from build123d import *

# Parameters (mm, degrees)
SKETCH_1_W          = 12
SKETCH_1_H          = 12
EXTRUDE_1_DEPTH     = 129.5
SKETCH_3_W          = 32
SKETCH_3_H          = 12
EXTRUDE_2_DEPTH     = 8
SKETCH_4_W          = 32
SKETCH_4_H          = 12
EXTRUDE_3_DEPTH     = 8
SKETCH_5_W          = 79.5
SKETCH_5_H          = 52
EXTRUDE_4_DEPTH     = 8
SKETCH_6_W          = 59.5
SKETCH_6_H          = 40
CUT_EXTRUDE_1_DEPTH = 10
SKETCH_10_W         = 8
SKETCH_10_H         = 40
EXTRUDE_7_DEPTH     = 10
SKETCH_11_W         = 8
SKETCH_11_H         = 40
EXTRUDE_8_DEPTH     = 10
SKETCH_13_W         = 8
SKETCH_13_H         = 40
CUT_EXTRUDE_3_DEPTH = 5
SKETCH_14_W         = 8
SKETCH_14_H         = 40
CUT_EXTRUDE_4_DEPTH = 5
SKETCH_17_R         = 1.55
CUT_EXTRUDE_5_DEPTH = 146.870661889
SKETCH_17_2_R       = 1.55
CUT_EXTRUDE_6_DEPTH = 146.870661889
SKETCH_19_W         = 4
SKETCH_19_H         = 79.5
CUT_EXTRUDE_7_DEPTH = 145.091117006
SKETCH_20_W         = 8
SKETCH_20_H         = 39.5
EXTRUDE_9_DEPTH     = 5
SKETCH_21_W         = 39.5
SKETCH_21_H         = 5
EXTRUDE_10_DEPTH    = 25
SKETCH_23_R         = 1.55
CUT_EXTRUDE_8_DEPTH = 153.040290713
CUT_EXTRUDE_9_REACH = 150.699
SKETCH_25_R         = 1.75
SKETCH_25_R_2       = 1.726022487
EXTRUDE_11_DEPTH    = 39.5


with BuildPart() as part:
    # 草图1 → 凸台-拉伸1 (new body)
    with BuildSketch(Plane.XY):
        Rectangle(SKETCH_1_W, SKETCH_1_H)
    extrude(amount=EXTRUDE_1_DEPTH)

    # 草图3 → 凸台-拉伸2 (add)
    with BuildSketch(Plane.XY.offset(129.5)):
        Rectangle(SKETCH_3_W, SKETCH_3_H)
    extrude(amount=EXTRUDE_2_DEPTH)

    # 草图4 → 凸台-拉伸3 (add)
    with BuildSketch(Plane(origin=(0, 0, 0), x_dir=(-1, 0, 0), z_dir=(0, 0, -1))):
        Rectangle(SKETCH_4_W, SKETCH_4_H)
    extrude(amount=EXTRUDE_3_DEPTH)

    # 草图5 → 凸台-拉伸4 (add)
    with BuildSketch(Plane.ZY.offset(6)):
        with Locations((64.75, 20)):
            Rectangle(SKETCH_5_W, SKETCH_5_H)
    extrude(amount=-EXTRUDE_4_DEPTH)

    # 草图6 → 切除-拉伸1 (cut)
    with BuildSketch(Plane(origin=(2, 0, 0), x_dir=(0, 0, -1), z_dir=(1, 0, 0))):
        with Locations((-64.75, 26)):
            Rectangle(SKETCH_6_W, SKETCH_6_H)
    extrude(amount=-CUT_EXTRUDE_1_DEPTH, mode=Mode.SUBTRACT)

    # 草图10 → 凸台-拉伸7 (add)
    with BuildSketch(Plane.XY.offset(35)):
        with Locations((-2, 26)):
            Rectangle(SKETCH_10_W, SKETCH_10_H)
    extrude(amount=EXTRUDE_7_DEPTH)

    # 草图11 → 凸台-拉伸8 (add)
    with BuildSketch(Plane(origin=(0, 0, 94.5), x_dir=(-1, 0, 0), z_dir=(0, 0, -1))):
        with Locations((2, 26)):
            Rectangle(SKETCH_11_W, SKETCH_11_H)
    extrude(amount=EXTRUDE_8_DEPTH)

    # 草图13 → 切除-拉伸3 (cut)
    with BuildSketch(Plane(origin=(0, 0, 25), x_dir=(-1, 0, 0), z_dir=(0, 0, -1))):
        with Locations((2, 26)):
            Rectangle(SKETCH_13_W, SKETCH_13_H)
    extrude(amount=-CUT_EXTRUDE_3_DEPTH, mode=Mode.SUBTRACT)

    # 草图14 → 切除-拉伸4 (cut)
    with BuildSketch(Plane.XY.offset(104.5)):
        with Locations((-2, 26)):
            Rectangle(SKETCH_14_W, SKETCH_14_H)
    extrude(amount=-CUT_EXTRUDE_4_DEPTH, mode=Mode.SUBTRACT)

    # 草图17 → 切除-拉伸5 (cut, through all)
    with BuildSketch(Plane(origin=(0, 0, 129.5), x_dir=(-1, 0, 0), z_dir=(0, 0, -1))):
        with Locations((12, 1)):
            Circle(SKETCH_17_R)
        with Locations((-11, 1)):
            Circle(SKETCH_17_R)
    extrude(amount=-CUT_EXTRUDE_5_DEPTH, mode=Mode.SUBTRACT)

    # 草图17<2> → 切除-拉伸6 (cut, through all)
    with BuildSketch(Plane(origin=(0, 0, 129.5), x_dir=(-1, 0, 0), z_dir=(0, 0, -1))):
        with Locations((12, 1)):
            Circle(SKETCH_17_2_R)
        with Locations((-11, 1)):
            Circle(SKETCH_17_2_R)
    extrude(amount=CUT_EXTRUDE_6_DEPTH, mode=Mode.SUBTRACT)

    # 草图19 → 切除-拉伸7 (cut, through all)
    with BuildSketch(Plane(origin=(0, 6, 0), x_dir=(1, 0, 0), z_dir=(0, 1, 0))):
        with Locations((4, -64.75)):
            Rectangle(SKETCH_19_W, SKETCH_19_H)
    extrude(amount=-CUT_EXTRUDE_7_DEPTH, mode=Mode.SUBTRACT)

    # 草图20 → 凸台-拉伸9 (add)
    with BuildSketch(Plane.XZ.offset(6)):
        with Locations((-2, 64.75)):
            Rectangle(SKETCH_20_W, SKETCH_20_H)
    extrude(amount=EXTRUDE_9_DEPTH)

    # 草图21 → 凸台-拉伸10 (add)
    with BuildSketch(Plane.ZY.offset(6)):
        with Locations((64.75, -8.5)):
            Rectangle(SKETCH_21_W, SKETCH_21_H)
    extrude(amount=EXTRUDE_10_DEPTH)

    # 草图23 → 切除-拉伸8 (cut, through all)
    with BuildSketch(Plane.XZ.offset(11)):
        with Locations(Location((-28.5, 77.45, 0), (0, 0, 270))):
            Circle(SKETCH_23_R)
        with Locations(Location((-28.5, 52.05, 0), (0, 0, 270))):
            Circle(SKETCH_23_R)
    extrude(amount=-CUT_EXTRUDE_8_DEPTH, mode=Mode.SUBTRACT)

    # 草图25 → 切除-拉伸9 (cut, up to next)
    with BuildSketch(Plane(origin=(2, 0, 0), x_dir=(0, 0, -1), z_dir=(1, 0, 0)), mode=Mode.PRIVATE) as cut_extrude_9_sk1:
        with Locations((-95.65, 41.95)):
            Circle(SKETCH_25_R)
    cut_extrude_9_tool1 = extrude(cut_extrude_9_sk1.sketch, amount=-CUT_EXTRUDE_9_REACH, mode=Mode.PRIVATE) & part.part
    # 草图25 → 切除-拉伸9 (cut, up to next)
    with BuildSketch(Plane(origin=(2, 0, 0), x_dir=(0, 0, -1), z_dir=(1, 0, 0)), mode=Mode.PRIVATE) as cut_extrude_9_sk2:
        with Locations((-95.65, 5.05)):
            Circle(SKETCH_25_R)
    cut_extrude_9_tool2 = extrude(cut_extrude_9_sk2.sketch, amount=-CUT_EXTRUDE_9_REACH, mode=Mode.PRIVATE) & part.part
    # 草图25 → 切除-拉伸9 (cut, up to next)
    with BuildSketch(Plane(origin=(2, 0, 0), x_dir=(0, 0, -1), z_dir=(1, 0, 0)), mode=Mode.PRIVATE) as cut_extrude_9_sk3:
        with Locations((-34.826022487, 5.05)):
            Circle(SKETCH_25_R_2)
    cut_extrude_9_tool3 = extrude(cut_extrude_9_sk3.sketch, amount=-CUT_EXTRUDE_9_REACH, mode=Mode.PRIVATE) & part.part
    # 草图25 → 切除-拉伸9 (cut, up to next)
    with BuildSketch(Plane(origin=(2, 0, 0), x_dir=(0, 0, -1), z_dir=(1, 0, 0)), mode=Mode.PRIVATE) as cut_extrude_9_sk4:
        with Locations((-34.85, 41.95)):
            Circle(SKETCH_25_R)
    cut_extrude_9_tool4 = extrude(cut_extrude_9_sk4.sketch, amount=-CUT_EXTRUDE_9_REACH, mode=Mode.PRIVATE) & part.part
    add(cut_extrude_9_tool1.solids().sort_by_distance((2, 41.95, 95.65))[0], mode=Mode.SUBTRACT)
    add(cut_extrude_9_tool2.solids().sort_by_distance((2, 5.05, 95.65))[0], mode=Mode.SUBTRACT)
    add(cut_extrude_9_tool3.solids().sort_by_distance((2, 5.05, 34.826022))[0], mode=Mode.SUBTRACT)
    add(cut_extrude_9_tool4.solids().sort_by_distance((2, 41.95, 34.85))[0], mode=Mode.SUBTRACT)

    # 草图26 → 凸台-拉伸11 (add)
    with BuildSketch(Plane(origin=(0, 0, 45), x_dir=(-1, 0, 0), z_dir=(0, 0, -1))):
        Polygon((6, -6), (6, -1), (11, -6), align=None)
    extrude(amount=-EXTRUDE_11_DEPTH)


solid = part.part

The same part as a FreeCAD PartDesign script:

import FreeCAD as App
import Part
import Sketcher
from FreeCAD import Vector


def add_polygon(sketch, points):
    """Adds a closed chain of lines whose ends are joined by coincident constraints."""
    first, n = sketch.GeometryCount, len(points)
    for a, b in zip(points, points[1:] + points[:1]):
        sketch.addGeometry(Part.LineSegment(App.Vector(*a, 0), App.Vector(*b, 0)), False)
    for i in range(n):
        sketch.addConstraint(Sketcher.Constraint("Coincident", first + i, 2, first + (i + 1) % n, 1))

doc = App.newDocument("Part")
body = doc.addObject("PartDesign::Body", "Body")

# Sketch on XY plane
sketch1 = body.newObject("Sketcher::SketchObject", "Sketch")
sketch1.AttachmentSupport = (doc.getObject("XY_Plane"), [""])
sketch1.MapMode = "FlatFace"
add_polygon(sketch1, [(-6, 6), (-6, -6), (6, -6), (6, 6)])  # lines 0-3
sketch1.addConstraint(Sketcher.Constraint("Vertical", 0))
sketch1.addConstraint(Sketcher.Constraint("Horizontal", 1))
sketch1.addConstraint(Sketcher.Constraint("Vertical", 2))
sketch1.addConstraint(Sketcher.Constraint("Horizontal", 3))
sketch1.addConstraint(Sketcher.Constraint("Symmetric", 0, 2, 2, 2, -1, 1))
sketch1.addConstraint(Sketcher.Constraint("Equal", 3, 0))
sketch1.addConstraint(Sketcher.Constraint("DistanceX", 1, 1, 1, 2, 12.0))
pad1 = body.newObject("PartDesign::Pad", "Pad")
pad1.Profile = sketch1
pad1.Length = 129.5

# Sketch on XY plane
sketch2 = body.newObject("Sketcher::SketchObject", "Sketch001")
sketch2.AttachmentSupport = (doc.getObject("XY_Plane"), [""])
sketch2.MapMode = "FlatFace"
sketch2.AttachmentOffset = App.Placement(Vector(0, 0, 129.5), App.Rotation())
add_polygon(sketch2, [(-16, 6), (-16, -6), (16, -6), (16, 6)])  # lines 0-3
sketch2.addConstraint(Sketcher.Constraint("Vertical", 0))
sketch2.addConstraint(Sketcher.Constraint("Horizontal", 1))
sketch2.addConstraint(Sketcher.Constraint("Vertical", 2))
sketch2.addConstraint(Sketcher.Constraint("Horizontal", 3))
sketch2.addConstraint(Sketcher.Constraint("Symmetric", 0, 2, 2, 2, -1, 1))
sketch2.addConstraint(Sketcher.Constraint("DistanceX", 1, 1, 1, 2, 32.0))
sketch2.addConstraint(Sketcher.Constraint("DistanceY", 0, 2, 0, 1, 12.0))
pad2 = body.newObject("PartDesign::Pad", "Pad001")
pad2.Profile = sketch2
pad2.Length = 8

# Sketch on XY plane
sketch3 = body.newObject("Sketcher::SketchObject", "Sketch002")
sketch3.AttachmentSupport = (doc.getObject("XY_Plane"), [""])
sketch3.MapMode = "FlatFace"
add_polygon(sketch3, [(16, 6), (16, -6), (-16, -6), (-16, 6)])  # lines 0-3
sketch3.addConstraint(Sketcher.Constraint("Vertical", 0))
sketch3.addConstraint(Sketcher.Constraint("Horizontal", 1))
sketch3.addConstraint(Sketcher.Constraint("Vertical", 2))
sketch3.addConstraint(Sketcher.Constraint("Horizontal", 3))
sketch3.addConstraint(Sketcher.Constraint("Symmetric", 0, 2, 2, 2, -1, 1))
sketch3.addConstraint(Sketcher.Constraint("DistanceX", 1, 2, 1, 1, 32.0))
sketch3.addConstraint(Sketcher.Constraint("DistanceY", 0, 2, 0, 1, 12.0))
pad3 = body.newObject("PartDesign::Pad", "Pad002")
pad3.Profile = sketch3
pad3.Length = 8
pad3.Reversed = True

# Sketch on YZ plane
sketch4 = body.newObject("Sketcher::SketchObject", "Sketch003")
sketch4.AttachmentSupport = (doc.getObject("YZ_Plane"), [""])
sketch4.MapMode = "FlatFace"
sketch4.AttachmentOffset = App.Placement(Vector(0, 0, -6), App.Rotation())
add_polygon(sketch4, [(46, 25), (-6, 25), (-6, 104), (46, 104)])  # lines 0-3
sketch4.addConstraint(Sketcher.Constraint("Horizontal", 0))
sketch4.addConstraint(Sketcher.Constraint("Vertical", 1))
sketch4.addConstraint(Sketcher.Constraint("Horizontal", 2))
sketch4.addConstraint(Sketcher.Constraint("Vertical", 3))
sketch4.addConstraint(Sketcher.Constraint("DistanceX", 0, 2, 0, 1, 52.0))
sketch4.addConstraint(Sketcher.Constraint("DistanceY", 1, 1, 1, 2, 79.5))
sketch4.addConstraint(Sketcher.Constraint("DistanceX", 0, 2, -1, 1, 6.0))
sketch4.addConstraint(Sketcher.Constraint("DistanceY", -1, 1, 0, 2, 25.0))
pad4 = body.newObject("PartDesign::Pad", "Pad003")
pad4.Profile = sketch4
pad4.Length = 8

# Sketch on YZ plane
sketch5 = body.newObject("Sketcher::SketchObject", "Sketch004")
sketch5.AttachmentSupport = (doc.getObject("YZ_Plane"), [""])
sketch5.MapMode = "FlatFace"
sketch5.AttachmentOffset = App.Placement(Vector(0, 0, 2), App.Rotation())
add_polygon(sketch5, [(46, 94), (6, 94), (6, 35), (46, 35)])  # lines 0-3
sketch5.addConstraint(Sketcher.Constraint("Horizontal", 0))
sketch5.addConstraint(Sketcher.Constraint("Vertical", 1))
sketch5.addConstraint(Sketcher.Constraint("Horizontal", 2))
sketch5.addConstraint(Sketcher.Constraint("Vertical", 3))
sketch5.addConstraint(Sketcher.Constraint("DistanceX", 0, 2, 0, 1, 40.0))
sketch5.addConstraint(Sketcher.Constraint("DistanceY", 1, 2, 1, 1, 59.5))
sketch5.addConstraint(Sketcher.Constraint("DistanceX", -1, 1, 0, 2, 6.0))
sketch5.addConstraint(Sketcher.Constraint("DistanceY", -1, 1, 1, 2, 35.0))
pocket1 = body.newObject("PartDesign::Pocket", "Pocket")
pocket1.Profile = sketch5
pocket1.Length = 10

# Sketch on XY plane
sketch6 = body.newObject("Sketcher::SketchObject", "Sketch005")
sketch6.AttachmentSupport = (doc.getObject("XY_Plane"), [""])
sketch6.MapMode = "FlatFace"
sketch6.AttachmentOffset = App.Placement(Vector(0, 0, 35), App.Rotation())
add_polygon(sketch6, [(-6, 46), (-6, 6), (2, 6), (2, 46)])  # lines 0-3
sketch6.addConstraint(Sketcher.Constraint("Vertical", 0))
sketch6.addConstraint(Sketcher.Constraint("Horizontal", 1))
sketch6.addConstraint(Sketcher.Constraint("Vertical", 2))
sketch6.addConstraint(Sketcher.Constraint("Horizontal", 3))
sketch6.addConstraint(Sketcher.Constraint("DistanceX", 1, 1, 1, 2, 8.0))
sketch6.addConstraint(Sketcher.Constraint("DistanceY", 0, 2, 0, 1, 40.0))
sketch6.addConstraint(Sketcher.Constraint("DistanceX", 0, 2, -1, 1, 6.0))
sketch6.addConstraint(Sketcher.Constraint("DistanceY", -1, 1, 0, 2, 6.0))
pad5 = body.newObject("PartDesign::Pad", "Pad004")
pad5.Profile = sketch6
pad5.Length = 10

# Sketch on XY plane
sketch7 = body.newObject("Sketcher::SketchObject", "Sketch006")
sketch7.AttachmentSupport = (doc.getObject("XY_Plane"), [""])
sketch7.MapMode = "FlatFace"
sketch7.AttachmentOffset = App.Placement(Vector(0, 0, 94.5), App.Rotation())
add_polygon(sketch7, [(2, 46), (2, 6), (-6, 6), (-6, 46)])  # lines 0-3
sketch7.addConstraint(Sketcher.Constraint("Vertical", 0))
sketch7.addConstraint(Sketcher.Constraint("Horizontal", 1))
sketch7.addConstraint(Sketcher.Constraint("Vertical", 2))
sketch7.addConstraint(Sketcher.Constraint("Horizontal", 3))
sketch7.addConstraint(Sketcher.Constraint("DistanceX", 1, 2, 1, 1, 8.0))
sketch7.addConstraint(Sketcher.Constraint("DistanceY", 0, 2, 0, 1, 40.0))
sketch7.addConstraint(Sketcher.Constraint("DistanceX", -1, 1, 0, 2, 2.0))
sketch7.addConstraint(Sketcher.Constraint("DistanceY", -1, 1, 0, 2, 6.0))
pad6 = body.newObject("PartDesign::Pad", "Pad005")
pad6.Profile = sketch7
pad6.Length = 10
pad6.Reversed = True

# Sketch on XY plane
sketch8 = body.newObject("Sketcher::SketchObject", "Sketch007")
sketch8.AttachmentSupport = (doc.getObject("XY_Plane"), [""])
sketch8.MapMode = "FlatFace"
sketch8.AttachmentOffset = App.Placement(Vector(0, 0, 25), App.Rotation())
add_polygon(sketch8, [(2, 46), (2, 6), (-6, 6), (-6, 46)])  # lines 0-3
sketch8.addConstraint(Sketcher.Constraint("Vertical", 0))
sketch8.addConstraint(Sketcher.Constraint("Horizontal", 1))
sketch8.addConstraint(Sketcher.Constraint("Vertical", 2))
sketch8.addConstraint(Sketcher.Constraint("Horizontal", 3))
sketch8.addConstraint(Sketcher.Constraint("DistanceX", 1, 2, 1, 1, 8.0))
sketch8.addConstraint(Sketcher.Constraint("DistanceY", 0, 2, 0, 1, 40.0))
sketch8.addConstraint(Sketcher.Constraint("DistanceX", -1, 1, 0, 2, 2.0))
sketch8.addConstraint(Sketcher.Constraint("DistanceY", -1, 1, 0, 2, 6.0))
pocket2 = body.newObject("PartDesign::Pocket", "Pocket001")
pocket2.Profile = sketch8
pocket2.Length = 5
pocket2.Reversed = True

# Sketch on XY plane
sketch9 = body.newObject("Sketcher::SketchObject", "Sketch008")
sketch9.AttachmentSupport = (doc.getObject("XY_Plane"), [""])
sketch9.MapMode = "FlatFace"
sketch9.AttachmentOffset = App.Placement(Vector(0, 0, 104.5), App.Rotation())
add_polygon(sketch9, [(-6, 46), (-6, 6), (2, 6), (2, 46)])  # lines 0-3
sketch9.addConstraint(Sketcher.Constraint("Vertical", 0))
sketch9.addConstraint(Sketcher.Constraint("Horizontal", 1))
sketch9.addConstraint(Sketcher.Constraint("Vertical", 2))
sketch9.addConstraint(Sketcher.Constraint("Horizontal", 3))
sketch9.addConstraint(Sketcher.Constraint("DistanceX", 1, 1, 1, 2, 8.0))
sketch9.addConstraint(Sketcher.Constraint("DistanceY", 0, 2, 0, 1, 40.0))
sketch9.addConstraint(Sketcher.Constraint("DistanceX", 0, 2, -1, 1, 6.0))
sketch9.addConstraint(Sketcher.Constraint("DistanceY", -1, 1, 0, 2, 6.0))
pocket3 = body.newObject("PartDesign::Pocket", "Pocket002")
pocket3.Profile = sketch9
pocket3.Length = 5

# Sketch on XY plane
sketch10 = body.newObject("Sketcher::SketchObject", "Sketch009")
sketch10.AttachmentSupport = (doc.getObject("XY_Plane"), [""])
sketch10.MapMode = "FlatFace"
sketch10.AttachmentOffset = App.Placement(Vector(0, 0, 129.5), App.Rotation())
sketch10.addGeometry(Part.Circle(Vector(-12, 1, 0), Vector(0, 0, 1), 1.6), False)
sketch10.addGeometry(Part.Circle(Vector(11, 1, 0), Vector(0, 0, 1), 1.6), False)
sketch10.addConstraint(Sketcher.Constraint("Equal", 0, 1))
sketch10.addConstraint(Sketcher.Constraint("Horizontal", 0, 3, 1, 3))
sketch10.addConstraint(Sketcher.Constraint("Diameter", 0, 3.1))
sketch10.addConstraint(Sketcher.Constraint("DistanceX", 0, 3, -1, 1, 12.0))
sketch10.addConstraint(Sketcher.Constraint("DistanceY", -1, 1, 0, 3, 1.0))
sketch10.addConstraint(Sketcher.Constraint("DistanceX", -1, 1, 1, 3, 11.0))
pocket4 = body.newObject("PartDesign::Pocket", "Pocket003")
pocket4.Profile = sketch10
pocket4.Type = "ThroughAll"
pocket4.Reversed = True

# Sketch on XY plane
sketch11 = body.newObject("Sketcher::SketchObject", "Sketch010")
sketch11.AttachmentSupport = (doc.getObject("XY_Plane"), [""])
sketch11.MapMode = "FlatFace"
sketch11.AttachmentOffset = App.Placement(Vector(0, 0, 129.5), App.Rotation())
sketch11.addGeometry(Part.Circle(Vector(-12, 1, 0), Vector(0, 0, 1), 1.6), False)
sketch11.addGeometry(Part.Circle(Vector(11, 1, 0), Vector(0, 0, 1), 1.6), False)
sketch11.addConstraint(Sketcher.Constraint("Equal", 0, 1))
sketch11.addConstraint(Sketcher.Constraint("Horizontal", 0, 3, 1, 3))
sketch11.addConstraint(Sketcher.Constraint("Diameter", 0, 3.1))
sketch11.addConstraint(Sketcher.Constraint("DistanceX", 0, 3, -1, 1, 12.0))
sketch11.addConstraint(Sketcher.Constraint("DistanceY", -1, 1, 0, 3, 1.0))
sketch11.addConstraint(Sketcher.Constraint("DistanceX", -1, 1, 1, 3, 11.0))
pocket5 = body.newObject("PartDesign::Pocket", "Pocket004")
pocket5.Profile = sketch11
pocket5.Type = "ThroughAll"

# Sketch on XZ plane
sketch12 = body.newObject("Sketcher::SketchObject", "Sketch011")
sketch12.AttachmentSupport = (doc.getObject("XZ_Plane"), [""])
sketch12.MapMode = "FlatFace"
sketch12.AttachmentOffset = App.Placement(Vector(0, 0, -6), App.Rotation())
add_polygon(sketch12, [(2, 25), (2, 104.5), (6, 104.5), (6, 25)])  # lines 0-3
sketch12.addConstraint(Sketcher.Constraint("Vertical", 0))
sketch12.addConstraint(Sketcher.Constraint("Horizontal", 1))
sketch12.addConstraint(Sketcher.Constraint("Vertical", 2))
sketch12.addConstraint(Sketcher.Constraint("Horizontal", 3))
sketch12.addConstraint(Sketcher.Constraint("DistanceX", 1, 1, 1, 2, 4.0))
sketch12.addConstraint(Sketcher.Constraint("DistanceY", 0, 1, 0, 2, 79.5))
sketch12.addConstraint(Sketcher.Constraint("DistanceX", -1, 1, 0, 2, 2.0))
sketch12.addConstraint(Sketcher.Constraint("DistanceY", -1, 1, 2, 2, 25.0))
pocket6 = body.newObject("PartDesign::Pocket", "Pocket005")
pocket6.Profile = sketch12
pocket6.Type = "ThroughAll"
pocket6.Reversed = True

# Sketch on XZ plane
sketch13 = body.newObject("Sketcher::SketchObject", "Sketch012")
sketch13.AttachmentSupport = (doc.getObject("XZ_Plane"), [""])
sketch13.MapMode = "FlatFace"
sketch13.AttachmentOffset = App.Placement(Vector(0, 0, 6), App.Rotation())
add_polygon(sketch13, [(-6, 84), (-6, 45), (2, 45), (2, 84)])  # lines 0-3
sketch13.addConstraint(Sketcher.Constraint("Vertical", 0))
sketch13.addConstraint(Sketcher.Constraint("Horizontal", 1))
sketch13.addConstraint(Sketcher.Constraint("Vertical", 2))
sketch13.addConstraint(Sketcher.Constraint("Horizontal", 3))
sketch13.addConstraint(Sketcher.Constraint("DistanceX", 1, 1, 1, 2, 8.0))
sketch13.addConstraint(Sketcher.Constraint("DistanceY", 0, 2, 0, 1, 39.5))
sketch13.addConstraint(Sketcher.Constraint("DistanceX", 0, 2, -1, 1, 6.0))
sketch13.addConstraint(Sketcher.Constraint("DistanceY", -1, 1, 0, 2, 45.0))
pad7 = body.newObject("PartDesign::Pad", "Pad006")
pad7.Profile = sketch13
pad7.Length = 5

# Sketch on YZ plane
sketch14 = body.newObject("Sketcher::SketchObject", "Sketch013")
sketch14.AttachmentSupport = (doc.getObject("YZ_Plane"), [""])
sketch14.MapMode = "FlatFace"
sketch14.AttachmentOffset = App.Placement(Vector(0, 0, -6), App.Rotation())
add_polygon(sketch14, [(-6, 45), (-11, 45), (-11, 84), (-6, 84)])  # lines 0-3
sketch14.addConstraint(Sketcher.Constraint("Horizontal", 0))
sketch14.addConstraint(Sketcher.Constraint("Vertical", 1))
sketch14.addConstraint(Sketcher.Constraint("Horizontal", 2))
sketch14.addConstraint(Sketcher.Constraint("Vertical", 3))
sketch14.addConstraint(Sketcher.Constraint("DistanceX", 0, 2, 0, 1, 5.0))
sketch14.addConstraint(Sketcher.Constraint("DistanceY", 1, 1, 1, 2, 39.5))
sketch14.addConstraint(Sketcher.Constraint("DistanceX", 0, 2, -1, 1, 11.0))
sketch14.addConstraint(Sketcher.Constraint("DistanceY", -1, 1, 0, 2, 45.0))
pad8 = body.newObject("PartDesign::Pad", "Pad007")
pad8.Profile = sketch14
pad8.Length = 25
pad8.Reversed = True

# Sketch on XZ plane
sketch15 = body.newObject("Sketcher::SketchObject", "Sketch014")
sketch15.AttachmentSupport = (doc.getObject("XZ_Plane"), [""])
sketch15.MapMode = "FlatFace"
sketch15.AttachmentOffset = App.Placement(Vector(0, 0, 11), App.Rotation())
sketch15.addGeometry(Part.Circle(Vector(-28.5, 77.5, 0), Vector(0, 0, 1), 1.6), False)
sketch15.addGeometry(Part.Circle(Vector(-28.5, 52, 0), Vector(0, 0, 1), 1.6), False)
sketch15.addConstraint(Sketcher.Constraint("Equal", 0, 1))
sketch15.addConstraint(Sketcher.Constraint("Vertical", 0, 3, 1, 3))
sketch15.addConstraint(Sketcher.Constraint("Diameter", 0, 3.1))
sketch15.addConstraint(Sketcher.Constraint("DistanceX", 0, 3, -1, 1, 28.5))
sketch15.addConstraint(Sketcher.Constraint("DistanceY", 1, 3, 0, 3, 25.4))
sketch15.addConstraint(Sketcher.Constraint("DistanceY", -1, 1, 0, 3, 77.45))
pocket7 = body.newObject("PartDesign::Pocket", "Pocket006")
pocket7.Profile = sketch15
pocket7.Type = "ThroughAll"

# Sketch on YZ plane
sketch16 = body.newObject("Sketcher::SketchObject", "Sketch015")
sketch16.AttachmentSupport = (doc.getObject("YZ_Plane"), [""])
sketch16.MapMode = "FlatFace"
sketch16.AttachmentOffset = App.Placement(Vector(0, 0, 2), App.Rotation())
sketch16.addGeometry(Part.Circle(Vector(42, 95.7, 0), Vector(0, 0, 1), 1.8), False)
sketch16.addConstraint(Sketcher.Constraint("Diameter", 0, 3.5))
sketch16.addConstraint(Sketcher.Constraint("DistanceX", -1, 1, 0, 3, 41.95))
sketch16.addConstraint(Sketcher.Constraint("DistanceY", -1, 1, 0, 3, 95.65))
pocket8 = body.newObject("PartDesign::Pocket", "Pocket007")
pocket8.Profile = sketch16
pocket8.Type = "UpToFirst"

# Sketch on YZ plane
sketch17 = body.newObject("Sketcher::SketchObject", "Sketch016")
sketch17.AttachmentSupport = (doc.getObject("YZ_Plane"), [""])
sketch17.MapMode = "FlatFace"
sketch17.AttachmentOffset = App.Placement(Vector(0, 0, 2), App.Rotation())
sketch17.addGeometry(Part.Circle(Vector(5, 95.7, 0), Vector(0, 0, 1), 1.8), False)
sketch17.addConstraint(Sketcher.Constraint("Diameter", 0, 3.5))
sketch17.addConstraint(Sketcher.Constraint("DistanceX", -1, 1, 0, 3, 5.05))
sketch17.addConstraint(Sketcher.Constraint("DistanceY", -1, 1, 0, 3, 95.65))
pocket9 = body.newObject("PartDesign::Pocket", "Pocket008")
pocket9.Profile = sketch17
pocket9.Type = "UpToFirst"

# Sketch on YZ plane
sketch18 = body.newObject("Sketcher::SketchObject", "Sketch017")
sketch18.AttachmentSupport = (doc.getObject("YZ_Plane"), [""])
sketch18.MapMode = "FlatFace"
sketch18.AttachmentOffset = App.Placement(Vector(0, 0, 2), App.Rotation())
sketch18.addGeometry(Part.Circle(Vector(5, 34.8, 0), Vector(0, 0, 1), 1.7), False)
sketch18.addConstraint(Sketcher.Constraint("DistanceX", -1, 1, 0, 3, 5.05))
sketch18.addConstraint(Sketcher.Constraint("Diameter", 0, 3.452045))
sketch18.addConstraint(Sketcher.Constraint("DistanceY", -1, 1, 0, 3, 34.826022))
pocket10 = body.newObject("PartDesign::Pocket", "Pocket009")
pocket10.Profile = sketch18
pocket10.Type = "UpToFirst"

# Sketch on YZ plane
sketch19 = body.newObject("Sketcher::SketchObject", "Sketch018")
sketch19.AttachmentSupport = (doc.getObject("YZ_Plane"), [""])
sketch19.MapMode = "FlatFace"
sketch19.AttachmentOffset = App.Placement(Vector(0, 0, 2), App.Rotation())
sketch19.addGeometry(Part.Circle(Vector(42, 34.9, 0), Vector(0, 0, 1), 1.8), False)
sketch19.addConstraint(Sketcher.Constraint("Diameter", 0, 3.5))
sketch19.addConstraint(Sketcher.Constraint("DistanceX", -1, 1, 0, 3, 41.95))
sketch19.addConstraint(Sketcher.Constraint("DistanceY", -1, 1, 0, 3, 34.85))
pocket11 = body.newObject("PartDesign::Pocket", "Pocket010")
pocket11.Profile = sketch19
pocket11.Type = "UpToFirst"

# Sketch on XY plane
sketch20 = body.newObject("Sketcher::SketchObject", "Sketch019")
sketch20.AttachmentSupport = (doc.getObject("XY_Plane"), [""])
sketch20.MapMode = "FlatFace"
sketch20.AttachmentOffset = App.Placement(Vector(0, 0, 45), App.Rotation())
add_polygon(sketch20, [(-6, -1), (-6, -6), (-11, -6)])  # lines 0-2
sketch20.addConstraint(Sketcher.Constraint("Vertical", 0))
sketch20.addConstraint(Sketcher.Constraint("Horizontal", 1))
sketch20.addConstraint(Sketcher.Constraint("Equal", 1, 0))
sketch20.addConstraint(Sketcher.Constraint("DistanceX", 1, 2, 1, 1, 5.0))
sketch20.addConstraint(Sketcher.Constraint("DistanceX", 0, 2, -1, 1, 6.0))
sketch20.addConstraint(Sketcher.Constraint("DistanceY", 0, 2, -1, 1, 6.0))
pad9 = body.newObject("PartDesign::Pad", "Pad008")
pad9.Profile = sketch20
pad9.Length = 39.5

doc.recompute()
